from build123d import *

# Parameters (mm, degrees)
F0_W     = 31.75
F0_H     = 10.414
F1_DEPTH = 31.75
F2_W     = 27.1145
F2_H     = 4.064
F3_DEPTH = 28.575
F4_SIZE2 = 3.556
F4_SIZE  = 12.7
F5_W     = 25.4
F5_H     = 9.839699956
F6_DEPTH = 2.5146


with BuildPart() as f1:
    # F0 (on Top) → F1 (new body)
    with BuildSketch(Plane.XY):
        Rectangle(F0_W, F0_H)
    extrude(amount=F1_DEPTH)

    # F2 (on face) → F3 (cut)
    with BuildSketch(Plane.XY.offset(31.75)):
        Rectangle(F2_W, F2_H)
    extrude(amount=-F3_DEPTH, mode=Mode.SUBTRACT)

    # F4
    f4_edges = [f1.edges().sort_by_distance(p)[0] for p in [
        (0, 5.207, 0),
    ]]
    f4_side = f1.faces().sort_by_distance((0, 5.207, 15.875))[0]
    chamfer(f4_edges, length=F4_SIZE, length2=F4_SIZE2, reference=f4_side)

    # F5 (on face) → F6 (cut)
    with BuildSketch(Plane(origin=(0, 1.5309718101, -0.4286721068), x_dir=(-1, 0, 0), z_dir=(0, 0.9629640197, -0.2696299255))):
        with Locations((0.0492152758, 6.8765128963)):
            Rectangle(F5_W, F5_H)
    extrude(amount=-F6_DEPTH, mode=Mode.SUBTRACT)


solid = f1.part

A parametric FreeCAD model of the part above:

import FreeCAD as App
import Part
import Sketcher
from FreeCAD import Vector
Q = App.Units.Quantity


def edges_at(feature, points):
    """Names of the edges that pass closest to the given points."""
    edges = feature.Shape.Edges
    near = lambda p: min(range(len(edges)), key=lambda i: edges[i].distToShape(Part.Vertex(*p))[0])
    return sorted({f"Edge{near(p) + 1}" for p in points})

doc = App.newDocument("Part")
body = doc.addObject("PartDesign::Body", "Body")

# Sketch on XY plane
sketch1 = body.newObject("Sketcher::SketchObject", "Sketch")
sketch1.AttachmentSupport = (doc.getObject("XY_Plane"), [""])
sketch1.MapMode = "FlatFace"
sketch1.addGeometry([
    Part.LineSegment(Vector(-16, 5, 0), Vector(-16, -5, 0)),
    Part.LineSegment(Vector(-16, -5, 0), Vector(16, -5, 0)),
    Part.LineSegment(Vector(16, -5, 0), Vector(16, 5, 0)),
    Part.LineSegment(Vector(16, 5, 0), Vector(-16, 5, 0)),
], False)
sketch1.addConstraint([
    Sketcher.Constraint("Coincident", 0, 2, 1, 1),
    Sketcher.Constraint("Coincident", 1, 2, 2, 1),
    Sketcher.Constraint("Coincident", 2, 2, 3, 1),
    Sketcher.Constraint("Coincident", 3, 2, 0, 1),
    Sketcher.Constraint("Vertical", 0),
    Sketcher.Constraint("Horizontal", 1),
    Sketcher.Constraint("Vertical", 2),
    Sketcher.Constraint("Horizontal", 3),
    Sketcher.Constraint("Symmetric", 0, 2, 2, 2, -1, 1),
    Sketcher.Constraint("DistanceX", 1, 1, 1, 2, Q("1.25 in")),
    Sketcher.Constraint("DistanceY", 0, 2, 0, 1, Q("0.41 in")),
])
pad1 = body.newObject("PartDesign::Pad", "Pad")
pad1.Profile = sketch1
pad1.Length = Q("1.25 in")

# Sketch on XY plane
sketch2 = body.newObject("Sketcher::SketchObject", "Sketch001")
sketch2.AttachmentSupport = (doc.getObject("XY_Plane"), [""])
sketch2.MapMode = "FlatFace"
sketch2.AttachmentOffset = App.Placement(Vector(0, 0, 1.25 * 25.4), App.Rotation())
sketch2.addGeometry([
    Part.LineSegment(Vector(-13.6, 2, 0), Vector(-13.6, -2, 0)),
    Part.LineSegment(Vector(-13.6, -2, 0), Vector(13.6, -2, 0)),
    Part.LineSegment(Vector(13.6, -2, 0), Vector(13.6, 2, 0)),
    Part.LineSegment(Vector(13.6, 2, 0), Vector(-13.6, 2, 0)),
], False)
sketch2.addConstraint([
    Sketcher.Constraint("Coincident", 0, 2, 1, 1),
    Sketcher.Constraint("Coincident", 1, 2, 2, 1),
    Sketcher.Constraint("Coincident", 2, 2, 3, 1),
    Sketcher.Constraint("Coincident", 3, 2, 0, 1),
    Sketcher.Constraint("Vertical", 0),
    Sketcher.Constraint("Horizontal", 1),
    Sketcher.Constraint("Vertical", 2),
    Sketcher.Constraint("Horizontal", 3),
    Sketcher.Constraint("Symmetric", 0, 2, 2, 2, -1, 1),
    Sketcher.Constraint("DistanceY", 0, 2, 0, 1, Q("0.16 in")),
    Sketcher.Constraint("DistanceX", 1, 1, 1, 2, Q("1.0675 in")),
])
pocket1 = body.newObject("PartDesign::Pocket", "Pocket")
pocket1.Profile = sketch2
pocket1.Length = Q("1.125 in")
doc.recompute()

chamfer = body.newObject("PartDesign::Chamfer", "Chamfer")
chamfer.Base = (pocket1, edges_at(pocket1, [(0, 5.207, 0)]))
chamfer.ChamferType = "Two distances"
chamfer.Size = Q("0.5 in")
chamfer.Size2 = Q("0.14 in")

# Sketch on an angled plane
sketch3 = body.newObject("Sketcher::SketchObject", "Sketch002")
sketch3.Placement = App.Placement(Vector(0, 1.530972, -0.428672), App.Rotation(Vector(-1, 0, 0), Vector(0, 0.269629926, 0.96296402), Vector(0, 0.96296402, -0.269629926), "ZXY"))
sketch3.addGeometry([
    Part.LineSegment(Vector(-13, 12, 0), Vector(-13, 2, 0)),
    Part.LineSegment(Vector(-13, 2, 0), Vector(13, 2, 0)),
    Part.LineSegment(Vector(13, 2, 0), Vector(13, 12, 0)),
    Part.LineSegment(Vector(13, 12, 0), Vector(-13, 12, 0)),
], False)
sketch3.addConstraint([
    Sketcher.Constraint("Coincident", 0, 2, 1, 1),
    Sketcher.Constraint("Coincident", 1, 2, 2, 1),
    Sketcher.Constraint("Coincident", 2, 2, 3, 1),
    Sketcher.Constraint("Coincident", 3, 2, 0, 1),
    Sketcher.Constraint("Vertical", 0),
    Sketcher.Constraint("Horizontal", 1),
    Sketcher.Constraint("Vertical", 2),
    Sketcher.Constraint("Horizontal", 3),
    Sketcher.Constraint("DistanceX", 1, 1, 1, 2, Q("1 in")),
    Sketcher.Constraint("DistanceY", 0, 2, 0, 1, Q("9.8397 mm")),
    Sketcher.Constraint("DistanceX", 0, 2, -1, 1, Q("12.650785 mm")),
    Sketcher.Constraint("DistanceY", -1, 1, 0, 2, Q("1.956663 mm")),
])
pocket2 = body.newObject("PartDesign::Pocket", "Pocket001")
pocket2.Profile = sketch3
pocket2.Length = Q("0.099 in")

doc.recompute()
